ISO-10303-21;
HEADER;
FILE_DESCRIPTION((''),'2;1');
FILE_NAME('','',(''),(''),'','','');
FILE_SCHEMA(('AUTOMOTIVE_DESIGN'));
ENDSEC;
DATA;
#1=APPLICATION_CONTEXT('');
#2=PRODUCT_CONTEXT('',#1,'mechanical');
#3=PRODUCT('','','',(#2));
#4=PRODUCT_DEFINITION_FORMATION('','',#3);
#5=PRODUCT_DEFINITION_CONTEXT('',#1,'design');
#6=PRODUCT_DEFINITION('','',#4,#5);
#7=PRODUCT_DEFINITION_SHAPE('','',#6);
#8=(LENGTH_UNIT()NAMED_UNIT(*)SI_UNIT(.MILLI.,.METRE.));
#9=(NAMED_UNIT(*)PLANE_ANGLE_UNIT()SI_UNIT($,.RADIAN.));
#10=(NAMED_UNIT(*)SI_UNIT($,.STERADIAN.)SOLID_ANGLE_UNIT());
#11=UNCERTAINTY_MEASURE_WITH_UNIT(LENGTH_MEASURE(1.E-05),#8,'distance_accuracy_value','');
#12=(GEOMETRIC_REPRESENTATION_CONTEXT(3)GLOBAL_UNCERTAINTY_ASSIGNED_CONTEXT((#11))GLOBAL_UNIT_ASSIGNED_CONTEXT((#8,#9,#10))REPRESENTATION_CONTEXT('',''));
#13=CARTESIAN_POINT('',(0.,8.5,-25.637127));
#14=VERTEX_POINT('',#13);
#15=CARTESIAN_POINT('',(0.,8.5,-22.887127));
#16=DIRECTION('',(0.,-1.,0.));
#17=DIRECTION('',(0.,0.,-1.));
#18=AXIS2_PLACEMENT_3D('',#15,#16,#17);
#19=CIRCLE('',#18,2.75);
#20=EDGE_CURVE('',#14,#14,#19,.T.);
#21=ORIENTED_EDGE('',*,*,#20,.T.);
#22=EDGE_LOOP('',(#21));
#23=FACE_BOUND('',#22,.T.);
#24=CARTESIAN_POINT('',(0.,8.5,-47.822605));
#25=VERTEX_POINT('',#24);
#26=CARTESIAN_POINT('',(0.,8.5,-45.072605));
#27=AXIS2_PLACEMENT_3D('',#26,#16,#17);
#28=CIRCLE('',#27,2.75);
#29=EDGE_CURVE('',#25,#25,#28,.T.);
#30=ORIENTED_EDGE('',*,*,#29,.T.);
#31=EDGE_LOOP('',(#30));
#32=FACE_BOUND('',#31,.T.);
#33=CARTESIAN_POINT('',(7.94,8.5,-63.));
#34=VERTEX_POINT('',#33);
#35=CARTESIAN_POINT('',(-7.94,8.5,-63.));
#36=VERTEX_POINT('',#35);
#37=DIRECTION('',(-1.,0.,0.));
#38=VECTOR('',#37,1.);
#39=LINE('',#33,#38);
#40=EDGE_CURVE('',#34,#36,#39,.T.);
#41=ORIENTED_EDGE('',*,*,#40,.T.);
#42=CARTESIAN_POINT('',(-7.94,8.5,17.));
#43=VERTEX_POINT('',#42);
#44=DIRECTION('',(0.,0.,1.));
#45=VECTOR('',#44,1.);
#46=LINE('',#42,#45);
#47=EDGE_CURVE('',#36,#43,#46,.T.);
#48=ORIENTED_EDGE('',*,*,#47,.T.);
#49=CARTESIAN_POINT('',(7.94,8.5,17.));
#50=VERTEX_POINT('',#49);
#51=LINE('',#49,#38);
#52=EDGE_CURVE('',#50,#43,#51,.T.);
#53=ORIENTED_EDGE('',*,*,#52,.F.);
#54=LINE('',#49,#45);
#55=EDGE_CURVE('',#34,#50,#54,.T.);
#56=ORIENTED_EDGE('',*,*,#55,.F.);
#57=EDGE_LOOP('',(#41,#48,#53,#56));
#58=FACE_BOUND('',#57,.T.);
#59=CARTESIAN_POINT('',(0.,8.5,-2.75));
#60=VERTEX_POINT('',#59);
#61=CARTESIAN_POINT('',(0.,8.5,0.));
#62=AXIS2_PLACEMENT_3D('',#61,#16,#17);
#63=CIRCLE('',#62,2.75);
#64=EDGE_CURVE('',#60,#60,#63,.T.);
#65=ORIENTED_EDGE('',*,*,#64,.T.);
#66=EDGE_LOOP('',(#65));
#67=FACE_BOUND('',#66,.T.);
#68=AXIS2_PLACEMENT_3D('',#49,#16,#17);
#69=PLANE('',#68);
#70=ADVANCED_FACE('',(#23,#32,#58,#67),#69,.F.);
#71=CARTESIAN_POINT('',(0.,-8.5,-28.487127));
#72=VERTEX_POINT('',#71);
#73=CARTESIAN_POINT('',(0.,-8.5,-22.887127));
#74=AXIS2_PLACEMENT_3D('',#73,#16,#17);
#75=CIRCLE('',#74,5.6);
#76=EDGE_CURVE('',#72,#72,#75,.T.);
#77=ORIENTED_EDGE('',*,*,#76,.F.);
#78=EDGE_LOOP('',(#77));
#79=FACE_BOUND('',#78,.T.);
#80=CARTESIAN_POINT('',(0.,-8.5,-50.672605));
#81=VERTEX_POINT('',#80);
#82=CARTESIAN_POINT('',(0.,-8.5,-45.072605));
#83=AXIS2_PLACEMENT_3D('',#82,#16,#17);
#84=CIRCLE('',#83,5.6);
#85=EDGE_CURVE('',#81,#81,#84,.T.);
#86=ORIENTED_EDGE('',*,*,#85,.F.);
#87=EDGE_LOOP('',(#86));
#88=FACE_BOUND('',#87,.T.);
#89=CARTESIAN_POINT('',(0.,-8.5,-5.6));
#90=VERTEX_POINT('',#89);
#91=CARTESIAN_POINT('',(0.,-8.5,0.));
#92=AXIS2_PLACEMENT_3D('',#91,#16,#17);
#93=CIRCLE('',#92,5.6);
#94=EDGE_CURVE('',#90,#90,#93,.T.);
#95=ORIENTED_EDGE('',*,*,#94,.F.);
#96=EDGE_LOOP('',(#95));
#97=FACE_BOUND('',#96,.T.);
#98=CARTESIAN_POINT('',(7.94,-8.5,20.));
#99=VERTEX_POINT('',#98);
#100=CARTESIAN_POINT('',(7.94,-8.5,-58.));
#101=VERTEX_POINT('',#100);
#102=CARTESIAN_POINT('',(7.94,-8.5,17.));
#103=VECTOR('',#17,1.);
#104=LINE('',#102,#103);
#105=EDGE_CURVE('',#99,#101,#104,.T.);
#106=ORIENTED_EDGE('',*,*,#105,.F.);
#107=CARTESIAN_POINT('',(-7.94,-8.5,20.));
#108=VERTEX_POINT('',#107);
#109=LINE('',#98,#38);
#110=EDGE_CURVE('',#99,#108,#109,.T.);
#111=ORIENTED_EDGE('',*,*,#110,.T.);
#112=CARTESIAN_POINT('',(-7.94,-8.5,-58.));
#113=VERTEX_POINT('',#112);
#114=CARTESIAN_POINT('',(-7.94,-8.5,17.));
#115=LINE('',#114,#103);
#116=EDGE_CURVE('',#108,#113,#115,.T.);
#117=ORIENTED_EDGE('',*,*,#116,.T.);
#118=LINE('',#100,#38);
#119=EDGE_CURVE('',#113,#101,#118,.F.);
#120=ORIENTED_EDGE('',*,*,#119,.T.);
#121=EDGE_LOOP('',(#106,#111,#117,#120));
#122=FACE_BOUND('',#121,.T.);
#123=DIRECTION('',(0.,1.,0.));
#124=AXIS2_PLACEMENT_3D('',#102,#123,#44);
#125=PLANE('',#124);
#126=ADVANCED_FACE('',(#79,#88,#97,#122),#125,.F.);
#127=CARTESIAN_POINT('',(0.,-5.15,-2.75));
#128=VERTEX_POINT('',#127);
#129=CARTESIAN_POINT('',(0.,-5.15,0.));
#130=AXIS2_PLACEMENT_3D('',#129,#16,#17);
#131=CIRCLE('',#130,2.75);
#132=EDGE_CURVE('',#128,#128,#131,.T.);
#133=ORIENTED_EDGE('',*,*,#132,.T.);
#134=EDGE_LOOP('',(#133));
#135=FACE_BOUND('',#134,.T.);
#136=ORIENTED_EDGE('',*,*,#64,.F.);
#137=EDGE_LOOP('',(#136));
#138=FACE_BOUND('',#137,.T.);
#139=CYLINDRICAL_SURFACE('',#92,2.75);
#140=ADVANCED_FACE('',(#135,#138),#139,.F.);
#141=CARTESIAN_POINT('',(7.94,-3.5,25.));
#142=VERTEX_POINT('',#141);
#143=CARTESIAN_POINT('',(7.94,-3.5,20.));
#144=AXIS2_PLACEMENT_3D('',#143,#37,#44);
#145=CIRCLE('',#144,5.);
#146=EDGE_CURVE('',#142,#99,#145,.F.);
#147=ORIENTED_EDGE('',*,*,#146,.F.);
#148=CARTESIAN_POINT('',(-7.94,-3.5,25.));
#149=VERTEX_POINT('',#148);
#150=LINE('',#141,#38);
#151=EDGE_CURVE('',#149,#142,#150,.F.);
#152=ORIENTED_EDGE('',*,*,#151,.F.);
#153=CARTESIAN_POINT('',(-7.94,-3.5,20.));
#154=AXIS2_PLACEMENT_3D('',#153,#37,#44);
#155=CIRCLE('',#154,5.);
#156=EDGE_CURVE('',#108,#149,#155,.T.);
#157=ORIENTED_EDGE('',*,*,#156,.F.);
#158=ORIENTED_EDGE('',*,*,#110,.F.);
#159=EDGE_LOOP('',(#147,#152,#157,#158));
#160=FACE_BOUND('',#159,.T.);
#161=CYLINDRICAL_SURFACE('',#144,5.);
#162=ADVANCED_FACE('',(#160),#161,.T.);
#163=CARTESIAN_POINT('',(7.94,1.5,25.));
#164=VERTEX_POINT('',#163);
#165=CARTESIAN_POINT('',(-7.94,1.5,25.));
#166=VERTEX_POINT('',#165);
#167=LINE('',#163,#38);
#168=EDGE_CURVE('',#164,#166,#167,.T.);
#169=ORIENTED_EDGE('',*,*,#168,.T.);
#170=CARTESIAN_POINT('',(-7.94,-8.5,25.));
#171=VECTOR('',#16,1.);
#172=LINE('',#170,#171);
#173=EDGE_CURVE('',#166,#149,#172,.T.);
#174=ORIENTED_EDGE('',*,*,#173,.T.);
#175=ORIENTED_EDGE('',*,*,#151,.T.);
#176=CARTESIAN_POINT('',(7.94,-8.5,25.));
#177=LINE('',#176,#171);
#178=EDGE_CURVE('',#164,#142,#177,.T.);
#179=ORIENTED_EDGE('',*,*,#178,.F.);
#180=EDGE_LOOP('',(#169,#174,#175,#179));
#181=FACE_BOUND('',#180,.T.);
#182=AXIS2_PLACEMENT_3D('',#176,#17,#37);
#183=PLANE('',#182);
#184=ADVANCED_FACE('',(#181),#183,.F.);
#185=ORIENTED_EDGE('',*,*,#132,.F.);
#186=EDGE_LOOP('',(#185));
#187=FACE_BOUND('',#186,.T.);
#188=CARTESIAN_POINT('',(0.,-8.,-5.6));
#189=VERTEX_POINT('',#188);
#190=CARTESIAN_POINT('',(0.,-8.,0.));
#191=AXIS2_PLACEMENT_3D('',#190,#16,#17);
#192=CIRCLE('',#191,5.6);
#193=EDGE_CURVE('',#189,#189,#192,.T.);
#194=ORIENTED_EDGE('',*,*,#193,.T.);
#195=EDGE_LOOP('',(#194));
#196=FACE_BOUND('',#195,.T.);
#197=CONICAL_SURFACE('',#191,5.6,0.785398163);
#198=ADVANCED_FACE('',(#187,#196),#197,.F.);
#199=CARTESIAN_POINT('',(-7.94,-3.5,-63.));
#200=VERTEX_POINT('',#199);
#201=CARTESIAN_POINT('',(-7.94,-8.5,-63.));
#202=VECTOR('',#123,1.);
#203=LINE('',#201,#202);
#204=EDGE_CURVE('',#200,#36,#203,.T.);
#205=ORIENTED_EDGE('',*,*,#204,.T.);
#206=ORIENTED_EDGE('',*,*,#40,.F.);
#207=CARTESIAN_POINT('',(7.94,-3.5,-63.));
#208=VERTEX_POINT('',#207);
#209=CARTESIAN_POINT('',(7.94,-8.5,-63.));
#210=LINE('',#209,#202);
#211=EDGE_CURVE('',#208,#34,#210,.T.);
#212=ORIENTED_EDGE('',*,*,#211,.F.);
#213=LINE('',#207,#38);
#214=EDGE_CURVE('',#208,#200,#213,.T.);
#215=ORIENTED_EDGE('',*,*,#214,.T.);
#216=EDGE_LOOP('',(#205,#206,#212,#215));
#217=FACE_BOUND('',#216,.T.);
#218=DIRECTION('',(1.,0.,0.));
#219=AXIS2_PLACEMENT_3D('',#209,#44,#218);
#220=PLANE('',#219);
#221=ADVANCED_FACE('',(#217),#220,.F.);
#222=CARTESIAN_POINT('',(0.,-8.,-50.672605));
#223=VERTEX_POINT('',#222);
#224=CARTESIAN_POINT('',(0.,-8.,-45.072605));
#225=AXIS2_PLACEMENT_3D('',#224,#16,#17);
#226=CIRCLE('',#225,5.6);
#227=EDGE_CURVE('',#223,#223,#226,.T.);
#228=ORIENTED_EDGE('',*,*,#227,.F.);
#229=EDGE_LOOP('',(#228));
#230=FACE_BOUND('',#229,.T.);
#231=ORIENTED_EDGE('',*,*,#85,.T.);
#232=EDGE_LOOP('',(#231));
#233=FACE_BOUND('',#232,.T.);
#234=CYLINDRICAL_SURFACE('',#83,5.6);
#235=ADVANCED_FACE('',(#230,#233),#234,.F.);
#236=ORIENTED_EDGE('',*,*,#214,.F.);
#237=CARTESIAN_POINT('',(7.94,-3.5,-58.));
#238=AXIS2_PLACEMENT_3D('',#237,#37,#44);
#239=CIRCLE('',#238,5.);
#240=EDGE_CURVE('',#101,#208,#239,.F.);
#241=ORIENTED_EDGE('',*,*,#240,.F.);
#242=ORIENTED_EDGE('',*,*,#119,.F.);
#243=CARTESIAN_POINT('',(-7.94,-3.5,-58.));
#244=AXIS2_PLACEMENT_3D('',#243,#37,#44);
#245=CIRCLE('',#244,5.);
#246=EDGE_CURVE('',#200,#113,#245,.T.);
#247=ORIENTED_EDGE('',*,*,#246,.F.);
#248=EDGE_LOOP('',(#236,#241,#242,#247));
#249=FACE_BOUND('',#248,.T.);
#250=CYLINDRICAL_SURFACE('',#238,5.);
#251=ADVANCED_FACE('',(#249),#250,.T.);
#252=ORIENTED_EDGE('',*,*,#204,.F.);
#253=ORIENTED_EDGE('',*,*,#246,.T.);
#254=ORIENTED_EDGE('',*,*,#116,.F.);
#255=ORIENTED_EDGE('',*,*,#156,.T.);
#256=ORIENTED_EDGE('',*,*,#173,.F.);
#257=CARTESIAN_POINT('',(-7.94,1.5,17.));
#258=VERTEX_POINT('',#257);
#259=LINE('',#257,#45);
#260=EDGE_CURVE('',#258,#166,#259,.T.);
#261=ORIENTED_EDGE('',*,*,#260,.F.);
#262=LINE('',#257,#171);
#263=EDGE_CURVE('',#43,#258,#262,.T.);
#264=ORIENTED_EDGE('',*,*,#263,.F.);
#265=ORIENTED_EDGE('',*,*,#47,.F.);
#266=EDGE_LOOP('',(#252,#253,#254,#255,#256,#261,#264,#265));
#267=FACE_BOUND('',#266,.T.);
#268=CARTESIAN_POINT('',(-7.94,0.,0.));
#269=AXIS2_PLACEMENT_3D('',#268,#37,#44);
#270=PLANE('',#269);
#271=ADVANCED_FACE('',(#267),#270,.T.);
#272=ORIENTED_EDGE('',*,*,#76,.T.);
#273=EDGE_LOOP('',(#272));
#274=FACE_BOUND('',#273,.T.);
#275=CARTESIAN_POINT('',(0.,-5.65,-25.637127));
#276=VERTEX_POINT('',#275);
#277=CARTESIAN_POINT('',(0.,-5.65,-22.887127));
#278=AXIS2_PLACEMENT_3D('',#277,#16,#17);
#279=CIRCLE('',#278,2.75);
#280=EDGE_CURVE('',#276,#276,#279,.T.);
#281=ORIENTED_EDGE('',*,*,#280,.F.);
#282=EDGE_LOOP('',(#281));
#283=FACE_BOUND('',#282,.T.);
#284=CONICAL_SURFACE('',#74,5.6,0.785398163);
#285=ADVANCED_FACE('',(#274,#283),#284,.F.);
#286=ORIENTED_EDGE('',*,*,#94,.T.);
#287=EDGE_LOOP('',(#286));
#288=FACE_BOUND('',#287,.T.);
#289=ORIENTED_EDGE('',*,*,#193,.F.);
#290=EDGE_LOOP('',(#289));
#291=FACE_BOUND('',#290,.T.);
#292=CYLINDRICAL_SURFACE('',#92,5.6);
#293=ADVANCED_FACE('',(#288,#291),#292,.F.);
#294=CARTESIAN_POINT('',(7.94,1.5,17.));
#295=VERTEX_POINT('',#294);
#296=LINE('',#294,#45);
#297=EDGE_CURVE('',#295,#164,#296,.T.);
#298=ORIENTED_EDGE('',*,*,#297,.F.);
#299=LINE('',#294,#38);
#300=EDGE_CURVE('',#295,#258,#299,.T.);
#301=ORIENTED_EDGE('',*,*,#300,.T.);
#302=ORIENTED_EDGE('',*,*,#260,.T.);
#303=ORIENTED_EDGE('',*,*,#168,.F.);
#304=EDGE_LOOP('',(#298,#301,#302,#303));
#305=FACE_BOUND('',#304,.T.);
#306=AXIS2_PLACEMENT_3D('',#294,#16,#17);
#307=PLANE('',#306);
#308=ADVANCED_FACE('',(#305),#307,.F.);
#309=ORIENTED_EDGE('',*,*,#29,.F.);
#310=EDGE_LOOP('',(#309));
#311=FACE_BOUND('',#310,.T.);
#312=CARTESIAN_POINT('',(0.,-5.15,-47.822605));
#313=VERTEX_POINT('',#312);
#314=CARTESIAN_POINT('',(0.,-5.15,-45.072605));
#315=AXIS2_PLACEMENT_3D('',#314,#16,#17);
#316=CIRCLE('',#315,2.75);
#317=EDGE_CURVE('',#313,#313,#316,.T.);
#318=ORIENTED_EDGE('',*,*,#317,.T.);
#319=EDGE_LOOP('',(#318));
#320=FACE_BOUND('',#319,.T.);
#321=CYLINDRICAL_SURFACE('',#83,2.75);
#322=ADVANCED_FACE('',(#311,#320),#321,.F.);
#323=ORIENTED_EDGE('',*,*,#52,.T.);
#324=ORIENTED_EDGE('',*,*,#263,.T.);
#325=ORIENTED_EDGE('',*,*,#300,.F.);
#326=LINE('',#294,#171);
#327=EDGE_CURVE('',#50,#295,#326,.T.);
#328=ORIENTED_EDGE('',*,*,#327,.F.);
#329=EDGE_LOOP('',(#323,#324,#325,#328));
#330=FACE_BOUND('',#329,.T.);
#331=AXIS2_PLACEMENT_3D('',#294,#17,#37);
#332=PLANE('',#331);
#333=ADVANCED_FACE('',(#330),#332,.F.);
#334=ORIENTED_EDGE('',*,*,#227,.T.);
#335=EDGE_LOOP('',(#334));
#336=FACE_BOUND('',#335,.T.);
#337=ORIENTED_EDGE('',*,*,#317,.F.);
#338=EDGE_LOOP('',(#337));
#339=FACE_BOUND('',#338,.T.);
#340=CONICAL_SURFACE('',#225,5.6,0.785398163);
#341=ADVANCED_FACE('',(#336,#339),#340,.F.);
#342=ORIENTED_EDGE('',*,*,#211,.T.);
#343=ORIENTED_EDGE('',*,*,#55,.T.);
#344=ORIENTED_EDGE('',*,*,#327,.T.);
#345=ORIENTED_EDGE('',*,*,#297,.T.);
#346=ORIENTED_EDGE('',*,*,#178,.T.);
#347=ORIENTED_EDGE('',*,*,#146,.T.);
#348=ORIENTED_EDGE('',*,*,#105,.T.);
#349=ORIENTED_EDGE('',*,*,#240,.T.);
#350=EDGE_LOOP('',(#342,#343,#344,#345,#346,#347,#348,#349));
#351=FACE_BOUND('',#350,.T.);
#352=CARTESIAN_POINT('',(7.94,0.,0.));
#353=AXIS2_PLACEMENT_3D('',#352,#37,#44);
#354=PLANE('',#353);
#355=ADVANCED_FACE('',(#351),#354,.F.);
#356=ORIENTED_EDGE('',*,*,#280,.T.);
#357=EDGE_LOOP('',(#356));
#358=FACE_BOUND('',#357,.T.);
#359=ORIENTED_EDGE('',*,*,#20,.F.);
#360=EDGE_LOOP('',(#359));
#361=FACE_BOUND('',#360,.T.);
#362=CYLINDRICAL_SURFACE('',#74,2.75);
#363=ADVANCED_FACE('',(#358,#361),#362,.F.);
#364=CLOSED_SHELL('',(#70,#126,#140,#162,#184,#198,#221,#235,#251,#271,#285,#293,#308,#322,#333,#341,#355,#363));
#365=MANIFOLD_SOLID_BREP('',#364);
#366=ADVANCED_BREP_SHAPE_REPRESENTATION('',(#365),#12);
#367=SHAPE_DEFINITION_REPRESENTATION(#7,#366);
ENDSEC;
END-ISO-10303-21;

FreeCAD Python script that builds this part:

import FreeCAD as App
import Part
import Sketcher
from FreeCAD import Vector
Q = App.Units.Quantity


def edges_at(feature, points):
    """Names of the edges that pass closest to the given points."""
    edges = feature.Shape.Edges
    near = lambda p: min(range(len(edges)), key=lambda i: edges[i].distToShape(Part.Vertex(*p))[0])
    return sorted({f"Edge{near(p) + 1}" for p in points})


def add_polygon(sketch, points):
    """Adds a closed chain of lines whose ends are joined by coincident constraints."""
    first, n = sketch.GeometryCount, len(points)
    for a, b in zip(points, points[1:] + points[:1]):
        sketch.addGeometry(Part.LineSegment(App.Vector(*a, 0), App.Vector(*b, 0)), False)
    for i in range(n):
        sketch.addConstraint(Sketcher.Constraint("Coincident", first + i, 2, first + (i + 1) % n, 1))

doc = App.newDocument("Part")
body = doc.addObject("PartDesign::Body", "Body")

sketch1 = doc.addObject("Sketcher::SketchObject", "Sketch")
body.addObject(sketch1)
sketch1.AttachmentSupport = (doc.YZ_Plane, [""])
sketch1.MapMode = "FlatFace"
add_polygon(sketch1, [(-8, -63), (8, -63), (8, 17), (2, 17), (2, 25), (-8, 25)])
sketch1.addConstraint(Sketcher.Constraint("Horizontal", 0))
sketch1.addConstraint(Sketcher.Constraint("Vertical", 1))
sketch1.addConstraint(Sketcher.Constraint("Horizontal", 2))
sketch1.addConstraint(Sketcher.Constraint("Vertical", 3))
sketch1.addConstraint(Sketcher.Constraint("Horizontal", 4))
sketch1.addConstraint(Sketcher.Constraint("Vertical", 5))
sketch1.addConstraint(Sketcher.Constraint("DistanceX", 0, 1, 0, 2, 17.0))
sketch1.addConstraint(Sketcher.Constraint("DistanceX", 2, 2, 2, 1, 7.0))
sketch1.addConstraint(Sketcher.Constraint("DistanceY", 1, 1, 1, 2, 80.0))
sketch1.addConstraint(Sketcher.Constraint("DistanceY", 3, 1, 3, 2, 8.0))
sketch1.addConstraint(Sketcher.Constraint("DistanceY", 0, 2, -1, 1, 63.0))
sketch1.addConstraint(Sketcher.Constraint("DistanceX", -1, 1, 0, 2, 8.5))
pad1 = doc.addObject("PartDesign::Pad", "Pad")
body.addObject(pad1)
pad1.Profile = sketch1
pad1.Length = 15.88
pad1.Midplane = True
doc.recompute()

fillet = doc.addObject("PartDesign::Fillet", "Fillet")
body.addObject(fillet)
fillet.Base = (pad1, edges_at(pad1, [(0, -8.5, -63), (0, -8.5, 25)]))
fillet.Radius = 5

sketch2 = doc.addObject("Sketcher::SketchObject", "Sketch001")
body.addObject(sketch2)
sketch2.AttachmentSupport = (doc.YZ_Plane, [""])
sketch2.MapMode = "FlatFace"
add_polygon(sketch2, [(23.2, -45.1), (-8.5, -45.1), (-8.5, -50.7), (-8, -50.7), (-5.2, -47.8), (21.5, -47.8)])
sketch2.addGeometry(Part.LineSegment(Vector(-8.5, -45.1, 0), Vector(23.2, -45.1, 0)), True)
sketch2.addConstraint(Sketcher.Constraint("Horizontal", 0))
sketch2.addConstraint(Sketcher.Constraint("Vertical", 1))
sketch2.addConstraint(Sketcher.Constraint("Horizontal", 2))
sketch2.addConstraint(Sketcher.Constraint("Horizontal", 4))
sketch2.addConstraint(Sketcher.Constraint("Horizontal", 6))
sketch2.addConstraint(Sketcher.Constraint("Coincident", 6, 1, 0, 2))
sketch2.addConstraint(Sketcher.Constraint("Equal", 0, 6))
sketch2.addConstraint(Sketcher.Constraint("Angle", 3, Q("45 deg")))
sketch2.addConstraint(Sketcher.Constraint("Angle", 5, Q("59 deg")))
sketch2.addConstraint(Sketcher.Constraint("DistanceX", 2, 1, 2, 2, 0.5))
sketch2.addConstraint(Sketcher.Constraint("DistanceY", 1, 2, 1, 1, 5.6))
sketch2.addConstraint(Sketcher.Constraint("DistanceX", 2, 2, -1, 1, 8.0))
sketch2.addConstraint(Sketcher.Constraint("DistanceX", 0, 2, 4, 2, 30.0))
sketch2.addConstraint(Sketcher.Constraint("DistanceX", 4, 1, 4, 2, 26.65))
sketch2.addConstraint(Sketcher.Constraint("DistanceY", 0, 2, -1, 1, 45.072605))
groove = doc.addObject("PartDesign::Groove", "Groove")
body.addObject(groove)
groove.Profile = sketch2
groove.ReferenceAxis = (sketch2, ["Axis0"])
groove.Angle = 360
doc.recompute()

linearpattern = doc.addObject("PartDesign::LinearPattern", "LinearPattern")
body.addObject(linearpattern)
linearpattern.Originals = [groove]
linearpattern.Direction = (doc.Z_Axis, [""])
linearpattern.Mode = "offset"
linearpattern.Offset = 45.072605
linearpattern.Occurrences = 2
body.Tip = linearpattern
doc.recompute()

datumline = doc.addObject("PartDesign::Line", "DatumLine")
body.addObject(datumline)
datumline.Placement = App.Placement(Vector(0, 0, 0), App.Rotation(Vector(0, 0, 1), Vector(-0.826320571, 0, 0.563200066)))
linearpattern2 = doc.addObject("PartDesign::LinearPattern", "LinearPattern001")
body.addObject(linearpattern2)
linearpattern2.Originals = [groove]
linearpattern2.Direction = (datumline, [""])
linearpattern2.Mode = "offset"
linearpattern2.Offset = 80.029473
linearpattern2.Occurrences = 2
body.Tip = linearpattern2
doc.recompute()

datumline2 = doc.addObject("PartDesign::Line", "DatumLine001")
body.addObject(datumline2)
datumline2.Placement = App.Placement(Vector(0, 0, 0), App.Rotation(Vector(0, 0, 1), Vector(-0.894386047, 0, 0.447295874)))
linearpattern3 = doc.addObject("PartDesign::LinearPattern", "LinearPattern002")
body.addObject(linearpattern3)
linearpattern3.Originals = [groove]
linearpattern3.Direction = (datumline2, [""])
linearpattern3.Mode = "offset"
linearpattern3.Offset = 73.938989
linearpattern3.Occurrences = 2
body.Tip = linearpattern3

sketch3 = doc.addObject("Sketcher::SketchObject", "Sketch002")
body.addObject(sketch3)
sketch3.AttachmentSupport = (doc.XZ_Plane, [""])
sketch3.MapMode = "FlatFace"
sketch3.AttachmentOffset = App.Placement(Vector(0, 0, 8.5), App.Rotation())
sketch3.addGeometry(Part.Circle(Vector(0, -22.9, 0), Vector(0, 0, 1), 2.8), False)
sketch3.addConstraint(Sketcher.Constraint("PointOnObject", 0, 3, -2))
sketch3.addConstraint(Sketcher.Constraint("Diameter", 0, 5.5))
sketch3.addConstraint(Sketcher.Constraint("DistanceY", 0, 3, -1, 1, 22.887127))
doc.recompute()
hole = doc.addObject("PartDesign::Hole", "Hole")
body.addObject(hole)
hole.Profile = sketch3
hole.ThreadType = "None"
hole.Diameter = 5.5
hole.DepthType = "ThroughAll"
hole.HoleCutType = "Countersink"
hole.HoleCutDiameter = 11.2
hole.HoleCutCountersinkAngle = 90

doc.recompute()
